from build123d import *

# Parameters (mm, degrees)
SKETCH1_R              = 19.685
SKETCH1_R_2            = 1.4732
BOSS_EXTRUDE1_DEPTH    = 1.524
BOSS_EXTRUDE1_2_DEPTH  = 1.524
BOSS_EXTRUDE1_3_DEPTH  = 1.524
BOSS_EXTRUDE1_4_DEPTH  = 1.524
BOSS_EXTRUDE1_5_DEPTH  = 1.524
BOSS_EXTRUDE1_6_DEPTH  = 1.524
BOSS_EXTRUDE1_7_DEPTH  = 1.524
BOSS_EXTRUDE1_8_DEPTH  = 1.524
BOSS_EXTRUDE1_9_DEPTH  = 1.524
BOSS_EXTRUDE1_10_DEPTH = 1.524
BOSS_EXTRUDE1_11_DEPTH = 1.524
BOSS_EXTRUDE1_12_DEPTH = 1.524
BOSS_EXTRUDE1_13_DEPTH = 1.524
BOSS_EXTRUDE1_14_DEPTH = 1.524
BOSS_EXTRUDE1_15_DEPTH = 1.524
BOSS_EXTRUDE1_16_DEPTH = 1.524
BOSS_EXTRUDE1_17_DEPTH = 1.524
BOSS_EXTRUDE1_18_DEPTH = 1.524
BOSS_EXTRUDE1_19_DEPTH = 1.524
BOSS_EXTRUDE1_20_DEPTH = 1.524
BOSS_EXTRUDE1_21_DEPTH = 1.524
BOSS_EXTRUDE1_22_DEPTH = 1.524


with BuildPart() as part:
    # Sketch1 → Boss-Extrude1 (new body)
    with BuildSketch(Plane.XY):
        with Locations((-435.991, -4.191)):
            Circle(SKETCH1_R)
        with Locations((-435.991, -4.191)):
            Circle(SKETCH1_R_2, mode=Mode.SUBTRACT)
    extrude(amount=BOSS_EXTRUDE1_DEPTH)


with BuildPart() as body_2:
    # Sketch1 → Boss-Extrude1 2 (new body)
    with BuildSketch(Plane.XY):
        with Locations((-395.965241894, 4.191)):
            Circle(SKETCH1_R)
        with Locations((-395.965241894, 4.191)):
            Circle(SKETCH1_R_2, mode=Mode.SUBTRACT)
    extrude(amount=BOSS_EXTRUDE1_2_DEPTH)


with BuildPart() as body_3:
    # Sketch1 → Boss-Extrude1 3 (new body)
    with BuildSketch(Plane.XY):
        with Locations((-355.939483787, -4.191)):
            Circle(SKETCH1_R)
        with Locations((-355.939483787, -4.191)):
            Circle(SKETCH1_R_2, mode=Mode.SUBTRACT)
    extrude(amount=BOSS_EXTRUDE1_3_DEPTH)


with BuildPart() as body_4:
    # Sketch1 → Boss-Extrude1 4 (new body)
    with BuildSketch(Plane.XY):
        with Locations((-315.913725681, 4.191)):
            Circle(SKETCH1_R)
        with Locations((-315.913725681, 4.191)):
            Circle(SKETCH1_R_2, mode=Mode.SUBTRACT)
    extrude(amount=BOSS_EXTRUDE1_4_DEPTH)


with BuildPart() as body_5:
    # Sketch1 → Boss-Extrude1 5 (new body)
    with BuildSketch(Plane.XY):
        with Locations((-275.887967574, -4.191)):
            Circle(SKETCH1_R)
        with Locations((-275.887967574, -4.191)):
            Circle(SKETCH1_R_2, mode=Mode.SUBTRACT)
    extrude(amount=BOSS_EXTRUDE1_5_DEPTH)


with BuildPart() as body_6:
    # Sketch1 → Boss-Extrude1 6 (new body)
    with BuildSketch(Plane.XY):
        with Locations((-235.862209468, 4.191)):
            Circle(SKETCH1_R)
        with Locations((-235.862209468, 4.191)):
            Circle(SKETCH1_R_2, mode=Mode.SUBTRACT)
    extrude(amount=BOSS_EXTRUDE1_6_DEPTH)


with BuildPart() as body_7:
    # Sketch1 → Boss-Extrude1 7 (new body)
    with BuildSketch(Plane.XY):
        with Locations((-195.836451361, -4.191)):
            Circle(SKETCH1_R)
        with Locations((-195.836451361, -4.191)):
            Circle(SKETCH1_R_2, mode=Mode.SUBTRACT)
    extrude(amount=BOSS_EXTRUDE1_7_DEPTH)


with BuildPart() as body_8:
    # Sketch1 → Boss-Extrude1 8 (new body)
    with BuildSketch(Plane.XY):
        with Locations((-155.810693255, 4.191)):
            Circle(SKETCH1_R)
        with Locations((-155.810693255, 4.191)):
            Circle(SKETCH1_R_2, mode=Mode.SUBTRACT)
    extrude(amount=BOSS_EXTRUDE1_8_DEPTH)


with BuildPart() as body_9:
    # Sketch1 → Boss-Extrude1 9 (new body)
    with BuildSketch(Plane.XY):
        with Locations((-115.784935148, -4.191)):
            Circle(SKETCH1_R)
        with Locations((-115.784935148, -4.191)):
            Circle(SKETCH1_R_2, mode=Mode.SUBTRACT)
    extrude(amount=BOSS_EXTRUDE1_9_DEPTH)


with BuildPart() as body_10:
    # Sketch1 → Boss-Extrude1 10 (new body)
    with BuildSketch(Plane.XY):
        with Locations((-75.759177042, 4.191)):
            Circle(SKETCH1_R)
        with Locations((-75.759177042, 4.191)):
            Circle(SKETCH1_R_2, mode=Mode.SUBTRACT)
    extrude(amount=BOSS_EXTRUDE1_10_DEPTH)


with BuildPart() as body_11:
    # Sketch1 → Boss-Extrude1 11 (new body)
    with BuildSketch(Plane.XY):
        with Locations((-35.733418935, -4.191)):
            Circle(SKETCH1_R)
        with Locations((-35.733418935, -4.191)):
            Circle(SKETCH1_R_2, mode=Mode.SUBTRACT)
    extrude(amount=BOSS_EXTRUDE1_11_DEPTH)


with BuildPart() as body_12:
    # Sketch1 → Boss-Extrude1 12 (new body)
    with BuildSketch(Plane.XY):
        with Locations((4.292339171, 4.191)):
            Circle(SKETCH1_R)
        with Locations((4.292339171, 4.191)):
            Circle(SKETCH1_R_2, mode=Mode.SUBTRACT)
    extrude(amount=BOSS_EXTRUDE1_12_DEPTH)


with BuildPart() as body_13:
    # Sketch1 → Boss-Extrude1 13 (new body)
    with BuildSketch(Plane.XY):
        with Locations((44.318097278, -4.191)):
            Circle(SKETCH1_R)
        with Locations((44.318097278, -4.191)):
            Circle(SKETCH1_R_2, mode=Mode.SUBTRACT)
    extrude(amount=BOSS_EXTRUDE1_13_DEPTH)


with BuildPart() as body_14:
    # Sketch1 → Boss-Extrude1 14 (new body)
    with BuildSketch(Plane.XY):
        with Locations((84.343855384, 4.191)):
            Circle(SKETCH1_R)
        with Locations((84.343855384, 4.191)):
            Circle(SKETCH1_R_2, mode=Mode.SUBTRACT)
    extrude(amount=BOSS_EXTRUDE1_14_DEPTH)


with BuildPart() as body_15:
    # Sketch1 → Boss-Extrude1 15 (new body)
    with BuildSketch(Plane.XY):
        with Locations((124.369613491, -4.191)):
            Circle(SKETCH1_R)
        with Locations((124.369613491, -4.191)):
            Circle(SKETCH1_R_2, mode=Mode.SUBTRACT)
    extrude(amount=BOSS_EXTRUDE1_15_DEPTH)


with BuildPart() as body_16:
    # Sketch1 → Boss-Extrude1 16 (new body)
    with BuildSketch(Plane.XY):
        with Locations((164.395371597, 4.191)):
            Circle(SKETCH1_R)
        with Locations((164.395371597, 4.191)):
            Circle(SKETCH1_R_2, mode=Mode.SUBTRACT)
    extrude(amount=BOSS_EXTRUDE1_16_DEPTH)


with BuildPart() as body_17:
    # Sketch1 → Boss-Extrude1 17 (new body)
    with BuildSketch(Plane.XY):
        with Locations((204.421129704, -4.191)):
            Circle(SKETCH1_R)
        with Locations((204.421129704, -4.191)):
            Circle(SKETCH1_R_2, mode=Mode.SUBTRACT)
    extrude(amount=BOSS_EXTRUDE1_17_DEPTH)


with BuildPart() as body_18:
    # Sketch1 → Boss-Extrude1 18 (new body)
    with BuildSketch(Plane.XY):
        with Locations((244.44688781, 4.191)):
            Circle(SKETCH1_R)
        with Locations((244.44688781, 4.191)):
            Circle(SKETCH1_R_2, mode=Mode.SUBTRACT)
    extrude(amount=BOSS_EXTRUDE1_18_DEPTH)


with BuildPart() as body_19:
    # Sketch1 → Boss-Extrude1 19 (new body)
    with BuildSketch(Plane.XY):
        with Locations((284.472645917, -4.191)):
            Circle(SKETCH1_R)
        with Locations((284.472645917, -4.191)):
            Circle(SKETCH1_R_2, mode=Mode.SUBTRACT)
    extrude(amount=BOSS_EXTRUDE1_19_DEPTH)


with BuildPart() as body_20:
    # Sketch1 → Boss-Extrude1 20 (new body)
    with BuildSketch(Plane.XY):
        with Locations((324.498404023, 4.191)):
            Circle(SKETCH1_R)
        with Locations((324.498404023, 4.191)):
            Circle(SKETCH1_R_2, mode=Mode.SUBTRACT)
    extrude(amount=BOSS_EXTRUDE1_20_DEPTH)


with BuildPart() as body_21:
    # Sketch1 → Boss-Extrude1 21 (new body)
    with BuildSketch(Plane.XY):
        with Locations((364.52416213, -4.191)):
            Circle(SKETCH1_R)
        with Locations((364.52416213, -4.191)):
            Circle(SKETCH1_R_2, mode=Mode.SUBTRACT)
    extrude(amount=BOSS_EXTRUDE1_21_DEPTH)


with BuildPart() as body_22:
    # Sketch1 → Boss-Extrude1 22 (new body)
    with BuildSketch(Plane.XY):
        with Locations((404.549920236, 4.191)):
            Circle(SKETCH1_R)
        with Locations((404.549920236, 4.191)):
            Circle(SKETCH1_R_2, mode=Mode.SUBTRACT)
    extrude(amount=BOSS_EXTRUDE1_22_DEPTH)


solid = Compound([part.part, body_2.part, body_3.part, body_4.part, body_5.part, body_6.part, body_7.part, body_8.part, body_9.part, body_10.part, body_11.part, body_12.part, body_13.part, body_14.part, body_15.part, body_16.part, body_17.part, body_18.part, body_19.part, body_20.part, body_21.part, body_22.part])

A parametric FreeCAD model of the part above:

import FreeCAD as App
import Part
import Sketcher

V = App.Vector
Q = App.Units.Quantity

doc = App.newDocument("Part")
body = doc.addObject("PartDesign::Body", "Body")

# Sketch on XY plane
sketch1 = body.newObject("Sketcher::SketchObject", "Sketch")
sketch1.AttachmentSupport = (doc.getObject("XY_Plane"), [""])
sketch1.MapMode = "FlatFace"
sketch1.addGeometry([
    Part.Circle(V(-436, -4.2, 0), V(0, 0, 1), 19.7),
    Part.Circle(V(-436, -4.2, 0), V(0, 0, 1), 1.5),
], False)
sketch1.addConstraint([
    Sketcher.Constraint("Coincident", 1, 3, 0, 3),
    Sketcher.Constraint("Diameter", 0, Q("1.55 in")),
    Sketcher.Constraint("Diameter", 1, Q("0.116 in")),
    Sketcher.Constraint("DistanceX", 0, 3, -1, 1, Q("17.165 in")),
    Sketcher.Constraint("DistanceY", 0, 3, -1, 1, Q("0.165 in")),
])
pad1 = body.newObject("PartDesign::Pad", "Pad")
pad1.Profile = sketch1
pad1.Length = Q("0.06 in")
body2 = doc.addObject("PartDesign::Body", "Body001")

# Sketch on XY plane
sketch2 = body2.newObject("Sketcher::SketchObject", "Sketch001")
sketch2.AttachmentSupport = (doc.getObject("XY_Plane001"), [""])
sketch2.MapMode = "FlatFace"
sketch2.addGeometry([
    Part.Circle(V(-396, 4.2, 0), V(0, 0, 1), 19.7),
    Part.Circle(V(-396, 4.2, 0), V(0, 0, 1), 1.5),
], False)
sketch2.addConstraint([
    Sketcher.Constraint("Coincident", 1, 3, 0, 3),
    Sketcher.Constraint("Diameter", 0, Q("1.55 in")),
    Sketcher.Constraint("Diameter", 1, Q("0.116 in")),
    Sketcher.Constraint("DistanceY", -1, 1, 0, 3, Q("0.165 in")),
    Sketcher.Constraint("DistanceX", 0, 3, -1, 1, Q("395.965242 mm")),
])
pad2 = body2.newObject("PartDesign::Pad", "Pad001")
pad2.Profile = sketch2
pad2.Length = Q("0.06 in")
body3 = doc.addObject("PartDesign::Body", "Body002")

# Sketch on XY plane
sketch3 = body3.newObject("Sketcher::SketchObject", "Sketch002")
sketch3.AttachmentSupport = (doc.getObject("XY_Plane002"), [""])
sketch3.MapMode = "FlatFace"
sketch3.addGeometry([
    Part.Circle(V(-355.9, -4.2, 0), V(0, 0, 1), 19.7),
    Part.Circle(V(-355.9, -4.2, 0), V(0, 0, 1), 1.5),
], False)
sketch3.addConstraint([
    Sketcher.Constraint("Coincident", 1, 3, 0, 3),
    Sketcher.Constraint("Diameter", 0, Q("1.55 in")),
    Sketcher.Constraint("Diameter", 1, Q("0.116 in")),
    Sketcher.Constraint("DistanceY", 0, 3, -1, 1, Q("0.165 in")),
    Sketcher.Constraint("DistanceX", 0, 3, -1, 1, Q("355.939484 mm")),
])
pad3 = body3.newObject("PartDesign::Pad", "Pad002")
pad3.Profile = sketch3
pad3.Length = Q("0.06 in")
body4 = doc.addObject("PartDesign::Body", "Body003")

# Sketch on XY plane
sketch4 = body4.newObject("Sketcher::SketchObject", "Sketch003")
sketch4.AttachmentSupport = (doc.getObject("XY_Plane003"), [""])
sketch4.MapMode = "FlatFace"
sketch4.addGeometry([
    Part.Circle(V(-315.9, 4.2, 0), V(0, 0, 1), 19.7),
    Part.Circle(V(-315.9, 4.2, 0), V(0, 0, 1), 1.5),
], False)
sketch4.addConstraint([
    Sketcher.Constraint("Coincident", 1, 3, 0, 3),
    Sketcher.Constraint("Diameter", 0, Q("1.55 in")),
    Sketcher.Constraint("Diameter", 1, Q("0.116 in")),
    Sketcher.Constraint("DistanceY", -1, 1, 0, 3, Q("0.165 in")),
    Sketcher.Constraint("DistanceX", 0, 3, -1, 1, Q("315.913726 mm")),
])
pad4 = body4.newObject("PartDesign::Pad", "Pad003")
pad4.Profile = sketch4
pad4.Length = Q("0.06 in")
body5 = doc.addObject("PartDesign::Body", "Body004")

# Sketch on XY plane
sketch5 = body5.newObject("Sketcher::SketchObject", "Sketch004")
sketch5.AttachmentSupport = (doc.getObject("XY_Plane004"), [""])
sketch5.MapMode = "FlatFace"
sketch5.addGeometry([
    Part.Circle(V(-275.9, -4.2, 0), V(0, 0, 1), 19.7),
    Part.Circle(V(-275.9, -4.2, 0), V(0, 0, 1), 1.5),
], False)
sketch5.addConstraint([
    Sketcher.Constraint("Coincident", 1, 3, 0, 3),
    Sketcher.Constraint("Diameter", 0, Q("1.55 in")),
    Sketcher.Constraint("Diameter", 1, Q("0.116 in")),
    Sketcher.Constraint("DistanceY", 0, 3, -1, 1, Q("0.165 in")),
    Sketcher.Constraint("DistanceX", 0, 3, -1, 1, Q("275.887968 mm")),
])
pad5 = body5.newObject("PartDesign::Pad", "Pad004")
pad5.Profile = sketch5
pad5.Length = Q("0.06 in")
body6 = doc.addObject("PartDesign::Body", "Body005")

# Sketch on XY plane
sketch6 = body6.newObject("Sketcher::SketchObject", "Sketch005")
sketch6.AttachmentSupport = (doc.getObject("XY_Plane005"), [""])
sketch6.MapMode = "FlatFace"
sketch6.addGeometry([
    Part.Circle(V(-235.9, 4.2, 0), V(0, 0, 1), 19.7),
    Part.Circle(V(-235.9, 4.2, 0), V(0, 0, 1), 1.5),
], False)
sketch6.addConstraint([
    Sketcher.Constraint("Coincident", 1, 3, 0, 3),
    Sketcher.Constraint("Diameter", 0, Q("1.55 in")),
    Sketcher.Constraint("Diameter", 1, Q("0.116 in")),
    Sketcher.Constraint("DistanceY", -1, 1, 0, 3, Q("0.165 in")),
    Sketcher.Constraint("DistanceX", 0, 3, -1, 1, Q("235.862209 mm")),
])
pad6 = body6.newObject("PartDesign::Pad", "Pad005")
pad6.Profile = sketch6
pad6.Length = Q("0.06 in")
body7 = doc.addObject("PartDesign::Body", "Body006")

# Sketch on XY plane
sketch7 = body7.newObject("Sketcher::SketchObject", "Sketch006")
sketch7.AttachmentSupport = (doc.getObject("XY_Plane006"), [""])
sketch7.MapMode = "FlatFace"
sketch7.addGeometry([
    Part.Circle(V(-195.8, -4.2, 0), V(0, 0, 1), 19.7),
    Part.Circle(V(-195.8, -4.2, 0), V(0, 0, 1), 1.5),
], False)
sketch7.addConstraint([
    Sketcher.Constraint("Coincident", 1, 3, 0, 3),
    Sketcher.Constraint("Diameter", 0, Q("1.55 in")),
    Sketcher.Constraint("Diameter", 1, Q("0.116 in")),
    Sketcher.Constraint("DistanceY", 0, 3, -1, 1, Q("0.165 in")),
    Sketcher.Constraint("DistanceX", 0, 3, -1, 1, Q("195.836451 mm")),
])
pad7 = body7.newObject("PartDesign::Pad", "Pad006")
pad7.Profile = sketch7
pad7.Length = Q("0.06 in")
body8 = doc.addObject("PartDesign::Body", "Body007")

# Sketch on XY plane
sketch8 = body8.newObject("Sketcher::SketchObject", "Sketch007")
sketch8.AttachmentSupport = (doc.getObject("XY_Plane007"), [""])
sketch8.MapMode = "FlatFace"
sketch8.addGeometry([
    Part.Circle(V(-155.8, 4.2, 0), V(0, 0, 1), 19.7),
    Part.Circle(V(-155.8, 4.2, 0), V(0, 0, 1), 1.5),
], False)
sketch8.addConstraint([
    Sketcher.Constraint("Coincident", 1, 3, 0, 3),
    Sketcher.Constraint("Diameter", 0, Q("1.55 in")),
    Sketcher.Constraint("Diameter", 1, Q("0.116 in")),
    Sketcher.Constraint("DistanceY", -1, 1, 0, 3, Q("0.165 in")),
    Sketcher.Constraint("DistanceX", 0, 3, -1, 1, Q("155.810693 mm")),
])
pad8 = body8.newObject("PartDesign::Pad", "Pad007")
pad8.Profile = sketch8
pad8.Length = Q("0.06 in")
body9 = doc.addObject("PartDesign::Body", "Body008")

# Sketch on XY plane
sketch9 = body9.newObject("Sketcher::SketchObject", "Sketch008")
sketch9.AttachmentSupport = (doc.getObject("XY_Plane008"), [""])
sketch9.MapMode = "FlatFace"
sketch9.addGeometry([
    Part.Circle(V(-115.8, -4.2, 0), V(0, 0, 1), 19.7),
    Part.Circle(V(-115.8, -4.2, 0), V(0, 0, 1), 1.5),
], False)
sketch9.addConstraint([
    Sketcher.Constraint("Coincident", 1, 3, 0, 3),
    Sketcher.Constraint("Diameter", 0, Q("1.55 in")),
    Sketcher.Constraint("Diameter", 1, Q("0.116 in")),
    Sketcher.Constraint("DistanceY", 0, 3, -1, 1, Q("0.165 in")),
    Sketcher.Constraint("DistanceX", 0, 3, -1, 1, Q("115.784935 mm")),
])
pad9 = body9.newObject("PartDesign::Pad", "Pad008")
pad9.Profile = sketch9
pad9.Length = Q("0.06 in")
body10 = doc.addObject("PartDesign::Body", "Body009")

# Sketch on XY plane
sketch10 = body10.newObject("Sketcher::SketchObject", "Sketch009")
sketch10.AttachmentSupport = (doc.getObject("XY_Plane009"), [""])
sketch10.MapMode = "FlatFace"
sketch10.addGeometry([
    Part.Circle(V(-75.8, 4.2, 0), V(0, 0, 1), 19.7),
    Part.Circle(V(-75.8, 4.2, 0), V(0, 0, 1), 1.5),
], False)
sketch10.addConstraint([
    Sketcher.Constraint("Coincident", 1, 3, 0, 3),
    Sketcher.Constraint("Diameter", 0, Q("1.55 in")),
    Sketcher.Constraint("Diameter", 1, Q("0.116 in")),
    Sketcher.Constraint("DistanceY", -1, 1, 0, 3, Q("0.165 in")),
    Sketcher.Constraint("DistanceX", 0, 3, -1, 1, Q("75.759177 mm")),
])
pad10 = body10.newObject("PartDesign::Pad", "Pad009")
pad10.Profile = sketch10
pad10.Length = Q("0.06 in")
body11 = doc.addObject("PartDesign::Body", "Body010")

# Sketch on XY plane
sketch11 = body11.newObject("Sketcher::SketchObject", "Sketch010")
sketch11.AttachmentSupport = (doc.getObject("XY_Plane010"), [""])
sketch11.MapMode = "FlatFace"
sketch11.addGeometry([
    Part.Circle(V(-35.7, -4.2, 0), V(0, 0, 1), 19.7),
    Part.Circle(V(-35.7, -4.2, 0), V(0, 0, 1), 1.5),
], False)
sketch11.addConstraint([
    Sketcher.Constraint("Coincident", 1, 3, 0, 3),
    Sketcher.Constraint("Diameter", 0, Q("1.55 in")),
    Sketcher.Constraint("Diameter", 1, Q("0.116 in")),
    Sketcher.Constraint("DistanceY", 0, 3, -1, 1, Q("0.165 in")),
    Sketcher.Constraint("DistanceX", 0, 3, -1, 1, Q("35.733419 mm")),
])
pad11 = body11.newObject("PartDesign::Pad", "Pad010")
pad11.Profile = sketch11
pad11.Length = Q("0.06 in")
body12 = doc.addObject("PartDesign::Body", "Body011")

# Sketch on XY plane
sketch12 = body12.newObject("Sketcher::SketchObject", "Sketch011")
sketch12.AttachmentSupport = (doc.getObject("XY_Plane011"), [""])
sketch12.MapMode = "FlatFace"
sketch12.addGeometry([
    Part.Circle(V(4.3, 4.2, 0), V(0, 0, 1), 19.7),
    Part.Circle(V(4.3, 4.2, 0), V(0, 0, 1), 1.5),
], False)
sketch12.addConstraint([
    Sketcher.Constraint("Coincident", 1, 3, 0, 3),
    Sketcher.Constraint("Diameter", 0, Q("1.55 in")),
    Sketcher.Constraint("Diameter", 1, Q("0.116 in")),
    Sketcher.Constraint("DistanceY", -1, 1, 0, 3, Q("0.165 in")),
    Sketcher.Constraint("DistanceX", -1, 1, 0, 3, Q("4.292339 mm")),
])
pad12 = body12.newObject("PartDesign::Pad", "Pad011")
pad12.Profile = sketch12
pad12.Length = Q("0.06 in")
body13 = doc.addObject("PartDesign::Body", "Body012")

# Sketch on XY plane
sketch13 = body13.newObject("Sketcher::SketchObject", "Sketch012")
sketch13.AttachmentSupport = (doc.getObject("XY_Plane012"), [""])
sketch13.MapMode = "FlatFace"
sketch13.addGeometry([
    Part.Circle(V(44.3, -4.2, 0), V(0, 0, 1), 19.7),
    Part.Circle(V(44.3, -4.2, 0), V(0, 0, 1), 1.5),
], False)
sketch13.addConstraint([
    Sketcher.Constraint("Coincident", 1, 3, 0, 3),
    Sketcher.Constraint("Diameter", 0, Q("1.55 in")),
    Sketcher.Constraint("Diameter", 1, Q("0.116 in")),
    Sketcher.Constraint("DistanceY", 0, 3, -1, 1, Q("0.165 in")),
    Sketcher.Constraint("DistanceX", -1, 1, 0, 3, Q("44.318097 mm")),
])
pad13 = body13.newObject("PartDesign::Pad", "Pad012")
pad13.Profile = sketch13
pad13.Length = Q("0.06 in")
body14 = doc.addObject("PartDesign::Body", "Body013")

# Sketch on XY plane
sketch14 = body14.newObject("Sketcher::SketchObject", "Sketch013")
sketch14.AttachmentSupport = (doc.getObject("XY_Plane013"), [""])
sketch14.MapMode = "FlatFace"
sketch14.addGeometry([
    Part.Circle(V(84.3, 4.2, 0), V(0, 0, 1), 19.7),
    Part.Circle(V(84.3, 4.2, 0), V(0, 0, 1), 1.5),
], False)
sketch14.addConstraint([
    Sketcher.Constraint("Coincident", 1, 3, 0, 3),
    Sketcher.Constraint("Diameter", 0, Q("1.55 in")),
    Sketcher.Constraint("Diameter", 1, Q("0.116 in")),
    Sketcher.Constraint("DistanceY", -1, 1, 0, 3, Q("0.165 in")),
    Sketcher.Constraint("DistanceX", -1, 1, 0, 3, Q("84.343855 mm")),
])
pad14 = body14.newObject("PartDesign::Pad", "Pad013")
pad14.Profile = sketch14
pad14.Length = Q("0.06 in")
body15 = doc.addObject("PartDesign::Body", "Body014")

# Sketch on XY plane
sketch15 = body15.newObject("Sketcher::SketchObject", "Sketch014")
sketch15.AttachmentSupport = (doc.getObject("XY_Plane014"), [""])
sketch15.MapMode = "FlatFace"
sketch15.addGeometry([
    Part.Circle(V(124.4, -4.2, 0), V(0, 0, 1), 19.7),
    Part.Circle(V(124.4, -4.2, 0), V(0, 0, 1), 1.5),
], False)
sketch15.addConstraint([
    Sketcher.Constraint("Coincident", 1, 3, 0, 3),
    Sketcher.Constraint("Diameter", 0, Q("1.55 in")),
    Sketcher.Constraint("Diameter", 1, Q("0.116 in")),
    Sketcher.Constraint("DistanceY", 0, 3, -1, 1, Q("0.165 in")),
    Sketcher.Constraint("DistanceX", -1, 1, 0, 3, Q("124.369613 mm")),
])
pad15 = body15.newObject("PartDesign::Pad", "Pad014")
pad15.Profile = sketch15
pad15.Length = Q("0.06 in")
body16 = doc.addObject("PartDesign::Body", "Body015")

# Sketch on XY plane
sketch16 = body16.newObject("Sketcher::SketchObject", "Sketch015")
sketch16.AttachmentSupport = (doc.getObject("XY_Plane015"), [""])
sketch16.MapMode = "FlatFace"
sketch16.addGeometry([
    Part.Circle(V(164.4, 4.2, 0), V(0, 0, 1), 19.7),
    Part.Circle(V(164.4, 4.2, 0), V(0, 0, 1), 1.5),
], False)
sketch16.addConstraint([
    Sketcher.Constraint("Coincident", 1, 3, 0, 3),
    Sketcher.Constraint("Diameter", 0, Q("1.55 in")),
    Sketcher.Constraint("Diameter", 1, Q("0.116 in")),
    Sketcher.Constraint("DistanceY", -1, 1, 0, 3, Q("0.165 in")),
    Sketcher.Constraint("DistanceX", -1, 1, 0, 3, Q("164.395372 mm")),
])
pad16 = body16.newObject("PartDesign::Pad", "Pad015")
pad16.Profile = sketch16
pad16.Length = Q("0.06 in")
body17 = doc.addObject("PartDesign::Body", "Body016")

# Sketch on XY plane
sketch17 = body17.newObject("Sketcher::SketchObject", "Sketch016")
sketch17.AttachmentSupport = (doc.getObject("XY_Plane016"), [""])
sketch17.MapMode = "FlatFace"
sketch17.addGeometry([
    Part.Circle(V(204.4, -4.2, 0), V(0, 0, 1), 19.7),
    Part.Circle(V(204.4, -4.2, 0), V(0, 0, 1), 1.5),
], False)
sketch17.addConstraint([
    Sketcher.Constraint("Coincident", 1, 3, 0, 3),
    Sketcher.Constraint("Diameter", 0, Q("1.55 in")),
    Sketcher.Constraint("Diameter", 1, Q("0.116 in")),
    Sketcher.Constraint("DistanceY", 0, 3, -1, 1, Q("0.165 in")),
    Sketcher.Constraint("DistanceX", -1, 1, 0, 3, Q("204.42113 mm")),
])
pad17 = body17.newObject("PartDesign::Pad", "Pad016")
pad17.Profile = sketch17
pad17.Length = Q("0.06 in")
body18 = doc.addObject("PartDesign::Body", "Body017")

# Sketch on XY plane
sketch18 = body18.newObject("Sketcher::SketchObject", "Sketch017")
sketch18.AttachmentSupport = (doc.getObject("XY_Plane017"), [""])
sketch18.MapMode = "FlatFace"
sketch18.addGeometry([
    Part.Circle(V(244.4, 4.2, 0), V(0, 0, 1), 19.7),
    Part.Circle(V(244.4, 4.2, 0), V(0, 0, 1), 1.5),
], False)
sketch18.addConstraint([
    Sketcher.Constraint("Coincident", 1, 3, 0, 3),
    Sketcher.Constraint("Diameter", 0, Q("1.55 in")),
    Sketcher.Constraint("Diameter", 1, Q("0.116 in")),
    Sketcher.Constraint("DistanceY", -1, 1, 0, 3, Q("0.165 in")),
    Sketcher.Constraint("DistanceX", -1, 1, 0, 3, Q("244.446888 mm")),
])
pad18 = body18.newObject("PartDesign::Pad", "Pad017")
pad18.Profile = sketch18
pad18.Length = Q("0.06 in")
body19 = doc.addObject("PartDesign::Body", "Body018")

# Sketch on XY plane
sketch19 = body19.newObject("Sketcher::SketchObject", "Sketch018")
sketch19.AttachmentSupport = (doc.getObject("XY_Plane018"), [""])
sketch19.MapMode = "FlatFace"
sketch19.addGeometry([
    Part.Circle(V(284.5, -4.2, 0), V(0, 0, 1), 19.7),
    Part.Circle(V(284.5, -4.2, 0), V(0, 0, 1), 1.5),
], False)
sketch19.addConstraint([
    Sketcher.Constraint("Coincident", 1, 3, 0, 3),
    Sketcher.Constraint("Diameter", 0, Q("1.55 in")),
    Sketcher.Constraint("Diameter", 1, Q("0.116 in")),
    Sketcher.Constraint("DistanceY", 0, 3, -1, 1, Q("0.165 in")),
    Sketcher.Constraint("DistanceX", -1, 1, 0, 3, Q("284.472646 mm")),
])
pad19 = body19.newObject("PartDesign::Pad", "Pad018")
pad19.Profile = sketch19
pad19.Length = Q("0.06 in")
body20 = doc.addObject("PartDesign::Body", "Body019")

# Sketch on XY plane
sketch20 = body20.newObject("Sketcher::SketchObject", "Sketch019")
sketch20.AttachmentSupport = (doc.getObject("XY_Plane019"), [""])
sketch20.MapMode = "FlatFace"
sketch20.addGeometry([
    Part.Circle(V(324.5, 4.2, 0), V(0, 0, 1), 19.7),
    Part.Circle(V(324.5, 4.2, 0), V(0, 0, 1), 1.5),
], False)
sketch20.addConstraint([
    Sketcher.Constraint("Coincident", 1, 3, 0, 3),
    Sketcher.Constraint("Diameter", 0, Q("1.55 in")),
    Sketcher.Constraint("Diameter", 1, Q("0.116 in")),
    Sketcher.Constraint("DistanceY", -1, 1, 0, 3, Q("0.165 in")),
    Sketcher.Constraint("DistanceX", -1, 1, 0, 3, Q("324.498404 mm")),
])
pad20 = body20.newObject("PartDesign::Pad", "Pad019")
pad20.Profile = sketch20
pad20.Length = Q("0.06 in")
body21 = doc.addObject("PartDesign::Body", "Body020")

# Sketch on XY plane
sketch21 = body21.newObject("Sketcher::SketchObject", "Sketch020")
sketch21.AttachmentSupport = (doc.getObject("XY_Plane020"), [""])
sketch21.MapMode = "FlatFace"
sketch21.addGeometry([
    Part.Circle(V(364.5, -4.2, 0), V(0, 0, 1), 19.7),
    Part.Circle(V(364.5, -4.2, 0), V(0, 0, 1), 1.5),
], False)
sketch21.addConstraint([
    Sketcher.Constraint("Coincident", 1, 3, 0, 3),
    Sketcher.Constraint("Diameter", 0, Q("1.55 in")),
    Sketcher.Constraint("Diameter", 1, Q("0.116 in")),
    Sketcher.Constraint("DistanceY", 0, 3, -1, 1, Q("0.165 in")),
    Sketcher.Constraint("DistanceX", -1, 1, 0, 3, Q("364.524162 mm")),
])
pad21 = body21.newObject("PartDesign::Pad", "Pad020")
pad21.Profile = sketch21
pad21.Length = Q("0.06 in")
body22 = doc.addObject("PartDesign::Body", "Body021")

# Sketch on XY plane
sketch22 = body22.newObject("Sketcher::SketchObject", "Sketch021")
sketch22.AttachmentSupport = (doc.getObject("XY_Plane021"), [""])
sketch22.MapMode = "FlatFace"
sketch22.addGeometry([
    Part.Circle(V(404.5, 4.2, 0), V(0, 0, 1), 19.7),
    Part.Circle(V(404.5, 4.2, 0), V(0, 0, 1), 1.5),
], False)
sketch22.addConstraint([
    Sketcher.Constraint("Coincident", 1, 3, 0, 3),
    Sketcher.Constraint("Diameter", 0, Q("1.55 in")),
    Sketcher.Constraint("Diameter", 1, Q("0.116 in")),
    Sketcher.Constraint("DistanceY", -1, 1, 0, 3, Q("0.165 in")),
    Sketcher.Constraint("DistanceX", -1, 1, 0, 3, Q("404.54992 mm")),
])
pad22 = body22.newObject("PartDesign::Pad", "Pad021")
pad22.Profile = sketch22
pad22.Length = Q("0.06 in")

doc.recompute()
